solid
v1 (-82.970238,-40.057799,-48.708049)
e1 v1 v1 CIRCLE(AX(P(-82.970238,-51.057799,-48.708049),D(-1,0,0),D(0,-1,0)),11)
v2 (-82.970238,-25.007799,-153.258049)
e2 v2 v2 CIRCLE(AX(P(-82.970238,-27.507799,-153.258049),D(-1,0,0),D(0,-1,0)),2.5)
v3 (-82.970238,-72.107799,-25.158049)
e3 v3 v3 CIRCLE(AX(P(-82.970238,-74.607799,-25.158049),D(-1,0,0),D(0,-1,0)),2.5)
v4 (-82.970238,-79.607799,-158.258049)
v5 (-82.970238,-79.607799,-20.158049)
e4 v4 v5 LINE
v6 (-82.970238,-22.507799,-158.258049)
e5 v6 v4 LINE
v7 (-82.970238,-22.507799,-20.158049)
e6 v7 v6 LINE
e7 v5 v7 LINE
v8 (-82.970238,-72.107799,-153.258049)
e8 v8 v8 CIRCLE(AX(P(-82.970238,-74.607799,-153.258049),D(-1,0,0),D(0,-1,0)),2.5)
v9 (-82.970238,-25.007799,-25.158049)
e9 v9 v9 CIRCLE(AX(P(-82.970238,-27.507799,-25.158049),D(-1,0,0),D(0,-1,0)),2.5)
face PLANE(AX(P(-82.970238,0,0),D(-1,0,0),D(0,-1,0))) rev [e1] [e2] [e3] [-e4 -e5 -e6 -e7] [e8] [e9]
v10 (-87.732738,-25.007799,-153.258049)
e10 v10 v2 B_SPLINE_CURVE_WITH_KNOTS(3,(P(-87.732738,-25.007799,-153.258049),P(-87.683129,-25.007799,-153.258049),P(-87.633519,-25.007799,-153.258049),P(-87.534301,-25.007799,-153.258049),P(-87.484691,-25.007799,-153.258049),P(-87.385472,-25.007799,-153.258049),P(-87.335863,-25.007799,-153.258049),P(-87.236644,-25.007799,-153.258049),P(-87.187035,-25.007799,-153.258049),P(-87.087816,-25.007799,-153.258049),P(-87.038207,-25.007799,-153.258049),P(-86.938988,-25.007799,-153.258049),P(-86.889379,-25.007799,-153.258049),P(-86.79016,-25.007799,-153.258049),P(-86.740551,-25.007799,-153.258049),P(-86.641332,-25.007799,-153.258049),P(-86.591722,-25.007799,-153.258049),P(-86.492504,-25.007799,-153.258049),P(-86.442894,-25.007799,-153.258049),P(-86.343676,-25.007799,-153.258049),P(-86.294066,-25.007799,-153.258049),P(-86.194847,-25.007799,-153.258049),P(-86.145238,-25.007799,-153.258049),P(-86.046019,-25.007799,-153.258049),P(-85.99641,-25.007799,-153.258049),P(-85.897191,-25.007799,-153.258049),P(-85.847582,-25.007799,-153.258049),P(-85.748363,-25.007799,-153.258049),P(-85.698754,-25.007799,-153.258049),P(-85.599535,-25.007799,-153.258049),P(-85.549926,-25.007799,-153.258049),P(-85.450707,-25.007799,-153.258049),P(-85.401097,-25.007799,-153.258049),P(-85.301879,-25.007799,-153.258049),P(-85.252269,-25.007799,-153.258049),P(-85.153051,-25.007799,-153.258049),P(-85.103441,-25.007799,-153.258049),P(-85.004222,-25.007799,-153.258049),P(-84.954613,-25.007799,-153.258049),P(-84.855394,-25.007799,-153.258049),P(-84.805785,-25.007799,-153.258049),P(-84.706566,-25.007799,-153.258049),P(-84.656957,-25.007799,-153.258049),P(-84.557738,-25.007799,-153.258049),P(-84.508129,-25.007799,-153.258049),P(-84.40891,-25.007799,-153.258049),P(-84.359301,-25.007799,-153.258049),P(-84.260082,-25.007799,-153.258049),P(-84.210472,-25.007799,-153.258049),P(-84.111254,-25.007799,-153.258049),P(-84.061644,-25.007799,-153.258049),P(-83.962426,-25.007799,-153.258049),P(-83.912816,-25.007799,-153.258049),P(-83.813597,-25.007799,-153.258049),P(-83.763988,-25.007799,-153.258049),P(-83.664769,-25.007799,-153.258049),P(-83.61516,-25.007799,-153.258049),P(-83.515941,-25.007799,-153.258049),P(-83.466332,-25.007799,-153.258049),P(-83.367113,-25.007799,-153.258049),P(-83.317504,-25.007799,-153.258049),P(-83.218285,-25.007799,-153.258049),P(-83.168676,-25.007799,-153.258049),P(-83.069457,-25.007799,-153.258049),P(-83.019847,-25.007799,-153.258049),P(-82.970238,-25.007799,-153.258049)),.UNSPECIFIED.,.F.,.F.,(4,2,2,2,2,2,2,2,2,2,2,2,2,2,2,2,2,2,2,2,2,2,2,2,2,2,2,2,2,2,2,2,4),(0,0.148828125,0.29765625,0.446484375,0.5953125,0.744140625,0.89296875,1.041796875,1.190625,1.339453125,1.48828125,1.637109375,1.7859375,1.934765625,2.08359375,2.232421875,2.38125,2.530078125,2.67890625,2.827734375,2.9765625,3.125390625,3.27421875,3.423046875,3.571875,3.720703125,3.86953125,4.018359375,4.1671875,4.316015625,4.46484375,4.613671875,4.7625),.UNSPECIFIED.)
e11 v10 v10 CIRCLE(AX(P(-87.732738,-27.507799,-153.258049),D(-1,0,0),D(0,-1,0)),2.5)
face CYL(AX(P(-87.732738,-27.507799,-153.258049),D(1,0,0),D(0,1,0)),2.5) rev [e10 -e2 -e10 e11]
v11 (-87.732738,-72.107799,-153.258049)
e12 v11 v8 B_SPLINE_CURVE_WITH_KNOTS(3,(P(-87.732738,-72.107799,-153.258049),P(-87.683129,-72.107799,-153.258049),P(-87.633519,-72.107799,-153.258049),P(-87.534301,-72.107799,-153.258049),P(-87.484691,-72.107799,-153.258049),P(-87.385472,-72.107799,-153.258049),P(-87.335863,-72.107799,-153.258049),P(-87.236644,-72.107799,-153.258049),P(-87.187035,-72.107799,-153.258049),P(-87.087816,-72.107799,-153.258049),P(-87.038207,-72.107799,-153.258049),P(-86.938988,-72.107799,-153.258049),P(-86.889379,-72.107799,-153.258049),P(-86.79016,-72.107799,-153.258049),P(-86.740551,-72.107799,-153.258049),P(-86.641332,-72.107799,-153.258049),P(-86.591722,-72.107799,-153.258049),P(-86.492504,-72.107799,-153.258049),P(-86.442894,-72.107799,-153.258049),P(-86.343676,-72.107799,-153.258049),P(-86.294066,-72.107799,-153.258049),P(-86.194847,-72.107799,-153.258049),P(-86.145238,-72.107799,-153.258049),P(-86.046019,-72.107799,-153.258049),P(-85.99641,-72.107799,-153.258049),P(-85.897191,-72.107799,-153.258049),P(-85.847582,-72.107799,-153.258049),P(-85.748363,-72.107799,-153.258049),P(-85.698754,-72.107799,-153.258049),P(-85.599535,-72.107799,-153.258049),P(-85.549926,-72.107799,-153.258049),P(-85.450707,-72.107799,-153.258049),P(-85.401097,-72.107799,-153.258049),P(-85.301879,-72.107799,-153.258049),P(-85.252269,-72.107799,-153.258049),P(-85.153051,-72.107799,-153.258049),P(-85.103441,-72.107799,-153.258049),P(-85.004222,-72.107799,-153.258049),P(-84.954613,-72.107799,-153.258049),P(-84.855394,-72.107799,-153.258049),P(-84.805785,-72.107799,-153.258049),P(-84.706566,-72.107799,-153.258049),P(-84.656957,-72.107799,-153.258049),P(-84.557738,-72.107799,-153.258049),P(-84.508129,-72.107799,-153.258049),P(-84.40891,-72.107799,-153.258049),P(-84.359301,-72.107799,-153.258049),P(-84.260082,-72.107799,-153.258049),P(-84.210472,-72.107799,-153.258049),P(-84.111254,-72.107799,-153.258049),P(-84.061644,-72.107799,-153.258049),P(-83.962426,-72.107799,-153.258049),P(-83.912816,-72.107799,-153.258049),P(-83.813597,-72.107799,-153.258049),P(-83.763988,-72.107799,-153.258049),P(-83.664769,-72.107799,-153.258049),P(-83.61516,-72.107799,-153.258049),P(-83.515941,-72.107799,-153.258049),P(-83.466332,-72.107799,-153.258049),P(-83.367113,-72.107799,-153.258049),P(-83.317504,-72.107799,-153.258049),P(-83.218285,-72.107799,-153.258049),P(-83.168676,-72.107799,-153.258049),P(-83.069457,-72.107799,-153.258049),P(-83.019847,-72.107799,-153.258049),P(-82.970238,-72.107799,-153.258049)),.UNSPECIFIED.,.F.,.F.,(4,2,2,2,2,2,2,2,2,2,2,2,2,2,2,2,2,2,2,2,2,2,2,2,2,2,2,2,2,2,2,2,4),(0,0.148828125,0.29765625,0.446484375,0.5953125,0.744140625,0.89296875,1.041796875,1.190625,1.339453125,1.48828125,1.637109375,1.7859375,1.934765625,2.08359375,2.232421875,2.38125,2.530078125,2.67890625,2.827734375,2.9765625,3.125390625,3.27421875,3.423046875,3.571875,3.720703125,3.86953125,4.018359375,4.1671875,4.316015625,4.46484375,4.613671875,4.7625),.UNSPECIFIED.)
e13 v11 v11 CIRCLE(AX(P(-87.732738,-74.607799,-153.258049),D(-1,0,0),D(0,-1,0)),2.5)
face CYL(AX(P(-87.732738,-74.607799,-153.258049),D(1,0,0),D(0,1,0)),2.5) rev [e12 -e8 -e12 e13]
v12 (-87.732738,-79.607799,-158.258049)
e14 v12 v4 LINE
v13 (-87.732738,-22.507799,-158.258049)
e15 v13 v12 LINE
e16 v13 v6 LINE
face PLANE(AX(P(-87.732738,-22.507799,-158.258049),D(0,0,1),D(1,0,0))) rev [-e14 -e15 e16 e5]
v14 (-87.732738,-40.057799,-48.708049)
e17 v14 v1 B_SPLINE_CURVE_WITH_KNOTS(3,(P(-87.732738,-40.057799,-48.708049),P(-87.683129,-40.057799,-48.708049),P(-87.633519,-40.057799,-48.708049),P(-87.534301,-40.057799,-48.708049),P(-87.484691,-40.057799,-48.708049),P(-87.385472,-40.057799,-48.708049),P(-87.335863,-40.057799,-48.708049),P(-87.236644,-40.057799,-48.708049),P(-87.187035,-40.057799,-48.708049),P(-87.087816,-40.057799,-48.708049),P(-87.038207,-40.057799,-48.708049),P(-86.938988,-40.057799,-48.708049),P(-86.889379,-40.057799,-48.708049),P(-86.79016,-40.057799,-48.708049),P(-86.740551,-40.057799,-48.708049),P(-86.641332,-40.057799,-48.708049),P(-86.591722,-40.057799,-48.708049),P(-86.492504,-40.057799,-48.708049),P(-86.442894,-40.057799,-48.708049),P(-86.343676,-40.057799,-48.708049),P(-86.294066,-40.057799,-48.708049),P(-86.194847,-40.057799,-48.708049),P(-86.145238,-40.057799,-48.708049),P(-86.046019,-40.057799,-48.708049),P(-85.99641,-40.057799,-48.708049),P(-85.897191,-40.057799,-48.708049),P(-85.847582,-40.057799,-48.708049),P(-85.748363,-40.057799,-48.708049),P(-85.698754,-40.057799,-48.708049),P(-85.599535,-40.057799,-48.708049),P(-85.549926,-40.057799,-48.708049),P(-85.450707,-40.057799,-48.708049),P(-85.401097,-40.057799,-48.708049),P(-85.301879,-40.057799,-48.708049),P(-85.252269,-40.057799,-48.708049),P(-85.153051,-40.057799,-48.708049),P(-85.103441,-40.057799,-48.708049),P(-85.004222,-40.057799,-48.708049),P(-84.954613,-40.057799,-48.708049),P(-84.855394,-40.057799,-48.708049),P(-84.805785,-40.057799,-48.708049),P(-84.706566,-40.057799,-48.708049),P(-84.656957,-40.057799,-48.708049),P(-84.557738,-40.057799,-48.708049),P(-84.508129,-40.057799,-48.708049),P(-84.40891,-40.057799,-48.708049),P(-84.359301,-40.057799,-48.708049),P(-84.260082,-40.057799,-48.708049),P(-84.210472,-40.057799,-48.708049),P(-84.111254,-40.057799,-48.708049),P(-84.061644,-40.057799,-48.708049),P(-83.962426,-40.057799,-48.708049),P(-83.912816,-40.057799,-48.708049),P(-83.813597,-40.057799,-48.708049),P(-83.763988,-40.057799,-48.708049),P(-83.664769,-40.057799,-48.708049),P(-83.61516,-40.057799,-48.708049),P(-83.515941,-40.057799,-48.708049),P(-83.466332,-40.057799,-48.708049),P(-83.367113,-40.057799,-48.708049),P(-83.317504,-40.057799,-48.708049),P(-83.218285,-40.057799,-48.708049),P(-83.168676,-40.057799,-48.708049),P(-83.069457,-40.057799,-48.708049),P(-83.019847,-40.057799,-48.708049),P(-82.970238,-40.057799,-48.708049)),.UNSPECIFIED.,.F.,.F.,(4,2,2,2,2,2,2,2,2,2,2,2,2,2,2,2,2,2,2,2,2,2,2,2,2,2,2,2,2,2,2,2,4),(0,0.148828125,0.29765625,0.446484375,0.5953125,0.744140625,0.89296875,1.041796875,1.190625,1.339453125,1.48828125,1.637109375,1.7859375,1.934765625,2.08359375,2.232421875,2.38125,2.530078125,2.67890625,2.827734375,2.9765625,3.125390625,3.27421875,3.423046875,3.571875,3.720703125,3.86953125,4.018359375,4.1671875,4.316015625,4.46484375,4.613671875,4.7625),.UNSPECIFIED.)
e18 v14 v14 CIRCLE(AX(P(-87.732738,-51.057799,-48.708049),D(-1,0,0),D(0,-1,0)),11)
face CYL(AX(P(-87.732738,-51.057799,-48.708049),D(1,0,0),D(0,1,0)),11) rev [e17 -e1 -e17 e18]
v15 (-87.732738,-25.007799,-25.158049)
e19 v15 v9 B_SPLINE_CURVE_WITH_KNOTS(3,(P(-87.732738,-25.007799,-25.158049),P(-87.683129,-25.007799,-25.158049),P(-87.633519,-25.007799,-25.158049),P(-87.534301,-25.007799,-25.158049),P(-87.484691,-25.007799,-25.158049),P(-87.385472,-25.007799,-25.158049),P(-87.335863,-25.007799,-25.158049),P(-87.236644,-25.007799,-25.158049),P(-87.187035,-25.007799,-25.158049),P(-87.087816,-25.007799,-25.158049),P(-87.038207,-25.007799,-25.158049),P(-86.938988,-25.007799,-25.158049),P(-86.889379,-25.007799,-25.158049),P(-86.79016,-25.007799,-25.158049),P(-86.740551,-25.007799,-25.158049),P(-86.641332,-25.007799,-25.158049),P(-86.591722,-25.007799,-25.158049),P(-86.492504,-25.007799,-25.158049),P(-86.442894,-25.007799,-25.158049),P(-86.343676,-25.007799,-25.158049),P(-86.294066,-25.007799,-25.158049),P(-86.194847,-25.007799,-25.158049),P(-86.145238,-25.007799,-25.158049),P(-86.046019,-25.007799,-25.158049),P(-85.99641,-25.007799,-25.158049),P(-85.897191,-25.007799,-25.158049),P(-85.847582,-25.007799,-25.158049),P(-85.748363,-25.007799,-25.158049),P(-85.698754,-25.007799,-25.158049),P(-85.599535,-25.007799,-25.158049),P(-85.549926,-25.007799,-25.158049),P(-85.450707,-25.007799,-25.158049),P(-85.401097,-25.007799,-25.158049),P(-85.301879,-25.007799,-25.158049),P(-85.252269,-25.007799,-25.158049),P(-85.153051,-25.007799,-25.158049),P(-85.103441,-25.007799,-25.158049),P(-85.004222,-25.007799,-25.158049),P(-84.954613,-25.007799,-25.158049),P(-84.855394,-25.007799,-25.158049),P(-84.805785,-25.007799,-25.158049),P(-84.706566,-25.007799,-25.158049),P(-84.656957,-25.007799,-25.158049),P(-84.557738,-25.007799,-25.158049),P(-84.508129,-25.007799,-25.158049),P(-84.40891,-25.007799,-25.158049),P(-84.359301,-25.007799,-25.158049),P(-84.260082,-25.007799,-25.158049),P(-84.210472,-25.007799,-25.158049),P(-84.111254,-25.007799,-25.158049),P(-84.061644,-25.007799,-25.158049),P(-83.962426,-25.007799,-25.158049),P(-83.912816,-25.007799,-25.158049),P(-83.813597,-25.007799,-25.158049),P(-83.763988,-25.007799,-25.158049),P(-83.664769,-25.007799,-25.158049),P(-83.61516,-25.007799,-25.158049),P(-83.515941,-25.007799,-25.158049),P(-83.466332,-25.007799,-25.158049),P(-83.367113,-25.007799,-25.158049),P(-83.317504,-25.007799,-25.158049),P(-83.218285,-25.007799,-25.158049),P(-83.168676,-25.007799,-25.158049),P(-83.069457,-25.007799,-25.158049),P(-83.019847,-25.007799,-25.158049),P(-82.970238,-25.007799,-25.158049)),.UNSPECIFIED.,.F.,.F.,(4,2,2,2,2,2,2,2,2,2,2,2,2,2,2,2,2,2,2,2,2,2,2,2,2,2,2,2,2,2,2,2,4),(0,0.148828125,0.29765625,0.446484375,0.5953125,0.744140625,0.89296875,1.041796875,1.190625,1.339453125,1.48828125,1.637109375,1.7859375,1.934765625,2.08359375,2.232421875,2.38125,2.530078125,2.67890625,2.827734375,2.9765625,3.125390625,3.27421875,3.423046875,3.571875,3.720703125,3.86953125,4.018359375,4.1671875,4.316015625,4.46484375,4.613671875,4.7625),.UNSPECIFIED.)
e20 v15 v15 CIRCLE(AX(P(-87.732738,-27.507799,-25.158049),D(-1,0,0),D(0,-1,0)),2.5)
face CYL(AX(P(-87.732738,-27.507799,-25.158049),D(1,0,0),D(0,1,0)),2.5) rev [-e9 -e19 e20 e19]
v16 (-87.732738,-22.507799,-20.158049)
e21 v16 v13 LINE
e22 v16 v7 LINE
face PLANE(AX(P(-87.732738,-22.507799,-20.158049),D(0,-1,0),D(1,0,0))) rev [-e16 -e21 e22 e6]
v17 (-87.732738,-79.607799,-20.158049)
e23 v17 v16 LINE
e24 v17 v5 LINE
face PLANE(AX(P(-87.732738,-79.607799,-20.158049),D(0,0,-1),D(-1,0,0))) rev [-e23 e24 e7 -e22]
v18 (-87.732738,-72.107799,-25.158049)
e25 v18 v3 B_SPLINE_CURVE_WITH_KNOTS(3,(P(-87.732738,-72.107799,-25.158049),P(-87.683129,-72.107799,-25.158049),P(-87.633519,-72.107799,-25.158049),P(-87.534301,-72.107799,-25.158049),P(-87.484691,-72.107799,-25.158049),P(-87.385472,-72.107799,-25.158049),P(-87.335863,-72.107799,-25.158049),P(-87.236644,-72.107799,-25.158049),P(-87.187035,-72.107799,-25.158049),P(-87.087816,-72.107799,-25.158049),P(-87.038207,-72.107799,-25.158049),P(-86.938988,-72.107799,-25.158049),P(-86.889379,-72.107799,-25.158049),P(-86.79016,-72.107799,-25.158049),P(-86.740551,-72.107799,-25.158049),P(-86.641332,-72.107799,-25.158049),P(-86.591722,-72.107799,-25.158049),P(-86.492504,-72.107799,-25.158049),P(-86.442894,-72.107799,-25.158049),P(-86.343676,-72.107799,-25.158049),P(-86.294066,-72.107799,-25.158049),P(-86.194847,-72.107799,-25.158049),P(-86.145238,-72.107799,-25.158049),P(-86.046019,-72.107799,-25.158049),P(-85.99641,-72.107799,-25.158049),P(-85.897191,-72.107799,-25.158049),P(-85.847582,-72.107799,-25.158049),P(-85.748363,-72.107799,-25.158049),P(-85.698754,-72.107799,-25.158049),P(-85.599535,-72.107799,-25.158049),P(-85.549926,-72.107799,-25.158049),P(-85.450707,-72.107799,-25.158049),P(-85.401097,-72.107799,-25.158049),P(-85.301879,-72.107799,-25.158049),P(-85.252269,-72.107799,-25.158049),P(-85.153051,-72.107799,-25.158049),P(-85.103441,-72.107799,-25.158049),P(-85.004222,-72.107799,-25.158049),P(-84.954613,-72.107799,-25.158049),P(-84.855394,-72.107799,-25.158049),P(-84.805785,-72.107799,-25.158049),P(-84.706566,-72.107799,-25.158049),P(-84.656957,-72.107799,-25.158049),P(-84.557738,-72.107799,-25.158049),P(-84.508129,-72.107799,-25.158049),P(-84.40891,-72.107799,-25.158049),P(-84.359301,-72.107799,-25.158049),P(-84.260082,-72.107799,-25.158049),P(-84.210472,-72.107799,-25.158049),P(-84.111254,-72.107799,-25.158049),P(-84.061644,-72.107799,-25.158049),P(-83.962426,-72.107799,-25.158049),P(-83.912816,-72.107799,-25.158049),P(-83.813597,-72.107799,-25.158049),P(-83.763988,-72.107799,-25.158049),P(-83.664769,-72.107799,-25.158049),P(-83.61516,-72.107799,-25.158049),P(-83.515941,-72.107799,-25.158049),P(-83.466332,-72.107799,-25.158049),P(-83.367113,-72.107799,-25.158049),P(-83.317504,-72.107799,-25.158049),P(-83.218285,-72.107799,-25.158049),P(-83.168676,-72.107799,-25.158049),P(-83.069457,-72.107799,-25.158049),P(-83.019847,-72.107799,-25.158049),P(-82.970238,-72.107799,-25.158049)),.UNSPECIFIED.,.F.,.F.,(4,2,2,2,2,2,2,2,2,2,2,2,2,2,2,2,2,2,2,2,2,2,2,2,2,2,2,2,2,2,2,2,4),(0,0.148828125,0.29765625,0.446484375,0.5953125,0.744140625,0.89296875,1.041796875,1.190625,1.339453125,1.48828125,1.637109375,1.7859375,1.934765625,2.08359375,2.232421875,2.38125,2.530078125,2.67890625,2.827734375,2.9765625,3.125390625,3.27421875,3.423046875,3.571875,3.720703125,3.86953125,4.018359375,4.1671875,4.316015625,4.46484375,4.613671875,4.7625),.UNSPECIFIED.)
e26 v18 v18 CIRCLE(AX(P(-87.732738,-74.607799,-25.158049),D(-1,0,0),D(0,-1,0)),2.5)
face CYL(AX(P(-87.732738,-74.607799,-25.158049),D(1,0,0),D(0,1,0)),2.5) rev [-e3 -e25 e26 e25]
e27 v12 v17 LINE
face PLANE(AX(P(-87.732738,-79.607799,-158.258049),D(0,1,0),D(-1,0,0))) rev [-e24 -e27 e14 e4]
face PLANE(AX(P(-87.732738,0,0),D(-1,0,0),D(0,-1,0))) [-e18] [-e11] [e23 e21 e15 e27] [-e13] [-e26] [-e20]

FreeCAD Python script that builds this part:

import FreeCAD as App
import Part
import Sketcher
from FreeCAD import Vector
Q = App.Units.Quantity

doc = App.newDocument("Part")
params = doc.addObject("Spreadsheet::Sheet", "Params")
for row, (alias, value) in enumerate([
    ("sketch1_diameter", "5 mm"),
    ("sketch1_diameter2", "22 mm"),
    ("sketch1_width", "57.1 mm"),
    ("sketch1_height", "138.1 mm"),
    ("pad1_length", "4.7625 mm"),
], start=1):
    params.set(f"A{row}", alias)
    params.set(f"B{row}", "=" + value)
    params.setAlias(f"B{row}", alias)

body = doc.addObject("PartDesign::Body", "Body")

# Sketch on YZ plane
sketch1 = body.newObject("Sketcher::SketchObject", "Sketch")
sketch1.AttachmentSupport = (doc.getObject("YZ_Plane"), [""])
sketch1.MapMode = "FlatFace"
sketch1.AttachmentOffset = App.Placement(Vector(0, 0, -82.970238), App.Rotation())
sketch1.addGeometry([
    Part.LineSegment(Vector(-22.5, -158.3, 0), Vector(-79.6, -158.3, 0)),  # 0
    Part.LineSegment(Vector(-79.6, -158.3, 0), Vector(-79.6, -20.2, 0)),  # 1
    Part.LineSegment(Vector(-79.6, -20.2, 0), Vector(-22.5, -20.2, 0)),  # 2
    Part.LineSegment(Vector(-22.5, -20.2, 0), Vector(-22.5, -158.3, 0)),  # 3
    Part.Circle(Vector(-74.6, -153.3, 0), Vector(0, 0, 1), 2.5),  # 4
    Part.Circle(Vector(-74.6, -25.2, 0), Vector(0, 0, 1), 2.5),  # 5
    Part.Circle(Vector(-27.5, -153.3, 0), Vector(0, 0, 1), 2.5),  # 6
    Part.Circle(Vector(-51.1, -48.7, 0), Vector(0, 0, 1), 11),  # 7
    Part.Circle(Vector(-27.5, -25.2, 0), Vector(0, 0, 1), 2.5),  # 8
], False)
sketch1.addConstraint([
    Sketcher.Constraint("Coincident", 0, 2, 1, 1),
    Sketcher.Constraint("Coincident", 1, 2, 2, 1),
    Sketcher.Constraint("Coincident", 2, 2, 3, 1),
    Sketcher.Constraint("Coincident", 3, 2, 0, 1),
    Sketcher.Constraint("Horizontal", 0),
    Sketcher.Constraint("Vertical", 1),
    Sketcher.Constraint("Horizontal", 2),
    Sketcher.Constraint("Vertical", 3),
    Sketcher.Constraint("Equal", 4, 5),
    Sketcher.Constraint("Equal", 5, 6),
    Sketcher.Constraint("Equal", 6, 8),
    Sketcher.Constraint("Horizontal", 4, 3, 6, 3),
    Sketcher.Constraint("Horizontal", 5, 3, 8, 3),
    Sketcher.Constraint("Vertical", 4, 3, 5, 3),
    Sketcher.Constraint("Vertical", 6, 3, 8, 3),
    Sketcher.Constraint("Diameter", 4, Q("5 mm")),
    Sketcher.Constraint("Diameter", 7, Q("22 mm")),
    Sketcher.Constraint("DistanceX", 0, 2, 0, 1, Q("57.1 mm")),
    Sketcher.Constraint("DistanceY", 1, 1, 1, 2, Q("138.1 mm")),
    Sketcher.Constraint("DistanceX", 0, 2, 4, 3, Q("5 mm")),
    Sketcher.Constraint("DistanceY", 0, 2, 4, 3, Q("5 mm")),
    Sketcher.Constraint("DistanceY", 5, 3, 1, 2, Q("5 mm")),
    Sketcher.Constraint("DistanceX", 8, 3, 2, 2, Q("5 mm")),
    Sketcher.Constraint("DistanceX", 5, 3, 7, 3, Q("23.55 mm")),
    Sketcher.Constraint("DistanceY", 7, 3, 5, 3, Q("23.55 mm")),
    Sketcher.Constraint("DistanceX", 4, 3, -1, 1, Q("74.607799 mm")),
    Sketcher.Constraint("DistanceY", 4, 3, -1, 1, Q("153.258049 mm")),
])
sketch1.setExpression("Constraints[15]", "Params.sketch1_diameter")
sketch1.setExpression("Constraints[16]", "Params.sketch1_diameter2")
sketch1.setExpression("Constraints[17]", "Params.sketch1_width")
sketch1.setExpression("Constraints[18]", "Params.sketch1_height")
pad1 = body.newObject("PartDesign::Pad", "Pad")
pad1.Profile = sketch1
pad1.setExpression("Length", "Params.pad1_length")
pad1.Reversed = True

doc.recompute()
